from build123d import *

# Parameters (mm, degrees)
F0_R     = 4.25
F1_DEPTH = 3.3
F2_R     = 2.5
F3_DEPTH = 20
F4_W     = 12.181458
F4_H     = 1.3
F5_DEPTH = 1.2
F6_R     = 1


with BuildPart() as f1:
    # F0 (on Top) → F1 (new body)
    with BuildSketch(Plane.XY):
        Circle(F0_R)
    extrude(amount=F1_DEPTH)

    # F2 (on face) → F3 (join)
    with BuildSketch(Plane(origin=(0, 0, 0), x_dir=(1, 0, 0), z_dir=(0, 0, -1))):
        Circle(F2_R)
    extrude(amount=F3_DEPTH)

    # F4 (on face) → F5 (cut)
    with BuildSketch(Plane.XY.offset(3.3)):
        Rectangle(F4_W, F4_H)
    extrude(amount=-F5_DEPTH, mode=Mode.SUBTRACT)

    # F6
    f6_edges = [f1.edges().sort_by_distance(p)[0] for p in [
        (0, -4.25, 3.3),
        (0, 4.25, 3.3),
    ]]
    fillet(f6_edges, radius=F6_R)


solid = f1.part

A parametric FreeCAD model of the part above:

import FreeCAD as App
import Part
import Sketcher
from FreeCAD import Vector


def edges_at(feature, points):
    """Names of the edges that pass closest to the given points."""
    edges = feature.Shape.Edges
    near = lambda p: min(range(len(edges)), key=lambda i: edges[i].distToShape(Part.Vertex(*p))[0])
    return sorted({f"Edge{near(p) + 1}" for p in points})


def add_polygon(sketch, points):
    """Adds a closed chain of lines whose ends are joined by coincident constraints."""
    first, n = sketch.GeometryCount, len(points)
    for a, b in zip(points, points[1:] + points[:1]):
        sketch.addGeometry(Part.LineSegment(App.Vector(*a, 0), App.Vector(*b, 0)), False)
    for i in range(n):
        sketch.addConstraint(Sketcher.Constraint("Coincident", first + i, 2, first + (i + 1) % n, 1))

doc = App.newDocument("Part")
body = doc.addObject("PartDesign::Body", "Body")

# Sketch on XY plane
sketch1 = body.newObject("Sketcher::SketchObject", "Sketch")
sketch1.AttachmentSupport = (doc.getObject("XY_Plane"), [""])
sketch1.MapMode = "FlatFace"
sketch1.addGeometry(Part.Circle(Vector(0, 0, 0), Vector(0, 0, 1), 4.2), False)
sketch1.addConstraint(Sketcher.Constraint("Coincident", 0, 3, -1, 1))
sketch1.addConstraint(Sketcher.Constraint("Diameter", 0, 8.5))
pad1 = body.newObject("PartDesign::Pad", "Pad")
pad1.Profile = sketch1
pad1.Length = 3.3

# Sketch on XY plane
sketch2 = body.newObject("Sketcher::SketchObject", "Sketch001")
sketch2.AttachmentSupport = (doc.getObject("XY_Plane"), [""])
sketch2.MapMode = "FlatFace"
sketch2.addGeometry(Part.Circle(Vector(0, 0, 0), Vector(0, 0, 1), 2.5), False)
sketch2.addConstraint(Sketcher.Constraint("Coincident", 0, 3, -1, 1))
sketch2.addConstraint(Sketcher.Constraint("Diameter", 0, 5.0))
pad2 = body.newObject("PartDesign::Pad", "Pad001")
pad2.Profile = sketch2
pad2.Length = 20
pad2.Reversed = True

# Sketch on XY plane
sketch3 = body.newObject("Sketcher::SketchObject", "Sketch002")
sketch3.AttachmentSupport = (doc.getObject("XY_Plane"), [""])
sketch3.MapMode = "FlatFace"
sketch3.AttachmentOffset = App.Placement(Vector(0, 0, 3.3), App.Rotation())
add_polygon(sketch3, [(-6.1, 0.7), (-6.1, -0.7), (6.1, -0.7), (6.1, 0.7)])  # lines 0-3
sketch3.addConstraint(Sketcher.Constraint("Vertical", 0))
sketch3.addConstraint(Sketcher.Constraint("Horizontal", 1))
sketch3.addConstraint(Sketcher.Constraint("Vertical", 2))
sketch3.addConstraint(Sketcher.Constraint("Horizontal", 3))
sketch3.addConstraint(Sketcher.Constraint("Symmetric", 0, 2, 2, 2, -1, 1))
sketch3.addConstraint(Sketcher.Constraint("DistanceY", 0, 2, 0, 1, 1.3))
sketch3.addConstraint(Sketcher.Constraint("DistanceX", 1, 1, 1, 2, 12.181458))
pocket1 = body.newObject("PartDesign::Pocket", "Pocket")
pocket1.Profile = sketch3
pocket1.Length = 1.2
doc.recompute()

fillet = body.newObject("PartDesign::Fillet", "Fillet")
fillet.Base = (pocket1, edges_at(pocket1, [(0, -4.25, 3.3), (0, 4.25, 3.3)]))
fillet.Radius = 1

doc.recompute()
